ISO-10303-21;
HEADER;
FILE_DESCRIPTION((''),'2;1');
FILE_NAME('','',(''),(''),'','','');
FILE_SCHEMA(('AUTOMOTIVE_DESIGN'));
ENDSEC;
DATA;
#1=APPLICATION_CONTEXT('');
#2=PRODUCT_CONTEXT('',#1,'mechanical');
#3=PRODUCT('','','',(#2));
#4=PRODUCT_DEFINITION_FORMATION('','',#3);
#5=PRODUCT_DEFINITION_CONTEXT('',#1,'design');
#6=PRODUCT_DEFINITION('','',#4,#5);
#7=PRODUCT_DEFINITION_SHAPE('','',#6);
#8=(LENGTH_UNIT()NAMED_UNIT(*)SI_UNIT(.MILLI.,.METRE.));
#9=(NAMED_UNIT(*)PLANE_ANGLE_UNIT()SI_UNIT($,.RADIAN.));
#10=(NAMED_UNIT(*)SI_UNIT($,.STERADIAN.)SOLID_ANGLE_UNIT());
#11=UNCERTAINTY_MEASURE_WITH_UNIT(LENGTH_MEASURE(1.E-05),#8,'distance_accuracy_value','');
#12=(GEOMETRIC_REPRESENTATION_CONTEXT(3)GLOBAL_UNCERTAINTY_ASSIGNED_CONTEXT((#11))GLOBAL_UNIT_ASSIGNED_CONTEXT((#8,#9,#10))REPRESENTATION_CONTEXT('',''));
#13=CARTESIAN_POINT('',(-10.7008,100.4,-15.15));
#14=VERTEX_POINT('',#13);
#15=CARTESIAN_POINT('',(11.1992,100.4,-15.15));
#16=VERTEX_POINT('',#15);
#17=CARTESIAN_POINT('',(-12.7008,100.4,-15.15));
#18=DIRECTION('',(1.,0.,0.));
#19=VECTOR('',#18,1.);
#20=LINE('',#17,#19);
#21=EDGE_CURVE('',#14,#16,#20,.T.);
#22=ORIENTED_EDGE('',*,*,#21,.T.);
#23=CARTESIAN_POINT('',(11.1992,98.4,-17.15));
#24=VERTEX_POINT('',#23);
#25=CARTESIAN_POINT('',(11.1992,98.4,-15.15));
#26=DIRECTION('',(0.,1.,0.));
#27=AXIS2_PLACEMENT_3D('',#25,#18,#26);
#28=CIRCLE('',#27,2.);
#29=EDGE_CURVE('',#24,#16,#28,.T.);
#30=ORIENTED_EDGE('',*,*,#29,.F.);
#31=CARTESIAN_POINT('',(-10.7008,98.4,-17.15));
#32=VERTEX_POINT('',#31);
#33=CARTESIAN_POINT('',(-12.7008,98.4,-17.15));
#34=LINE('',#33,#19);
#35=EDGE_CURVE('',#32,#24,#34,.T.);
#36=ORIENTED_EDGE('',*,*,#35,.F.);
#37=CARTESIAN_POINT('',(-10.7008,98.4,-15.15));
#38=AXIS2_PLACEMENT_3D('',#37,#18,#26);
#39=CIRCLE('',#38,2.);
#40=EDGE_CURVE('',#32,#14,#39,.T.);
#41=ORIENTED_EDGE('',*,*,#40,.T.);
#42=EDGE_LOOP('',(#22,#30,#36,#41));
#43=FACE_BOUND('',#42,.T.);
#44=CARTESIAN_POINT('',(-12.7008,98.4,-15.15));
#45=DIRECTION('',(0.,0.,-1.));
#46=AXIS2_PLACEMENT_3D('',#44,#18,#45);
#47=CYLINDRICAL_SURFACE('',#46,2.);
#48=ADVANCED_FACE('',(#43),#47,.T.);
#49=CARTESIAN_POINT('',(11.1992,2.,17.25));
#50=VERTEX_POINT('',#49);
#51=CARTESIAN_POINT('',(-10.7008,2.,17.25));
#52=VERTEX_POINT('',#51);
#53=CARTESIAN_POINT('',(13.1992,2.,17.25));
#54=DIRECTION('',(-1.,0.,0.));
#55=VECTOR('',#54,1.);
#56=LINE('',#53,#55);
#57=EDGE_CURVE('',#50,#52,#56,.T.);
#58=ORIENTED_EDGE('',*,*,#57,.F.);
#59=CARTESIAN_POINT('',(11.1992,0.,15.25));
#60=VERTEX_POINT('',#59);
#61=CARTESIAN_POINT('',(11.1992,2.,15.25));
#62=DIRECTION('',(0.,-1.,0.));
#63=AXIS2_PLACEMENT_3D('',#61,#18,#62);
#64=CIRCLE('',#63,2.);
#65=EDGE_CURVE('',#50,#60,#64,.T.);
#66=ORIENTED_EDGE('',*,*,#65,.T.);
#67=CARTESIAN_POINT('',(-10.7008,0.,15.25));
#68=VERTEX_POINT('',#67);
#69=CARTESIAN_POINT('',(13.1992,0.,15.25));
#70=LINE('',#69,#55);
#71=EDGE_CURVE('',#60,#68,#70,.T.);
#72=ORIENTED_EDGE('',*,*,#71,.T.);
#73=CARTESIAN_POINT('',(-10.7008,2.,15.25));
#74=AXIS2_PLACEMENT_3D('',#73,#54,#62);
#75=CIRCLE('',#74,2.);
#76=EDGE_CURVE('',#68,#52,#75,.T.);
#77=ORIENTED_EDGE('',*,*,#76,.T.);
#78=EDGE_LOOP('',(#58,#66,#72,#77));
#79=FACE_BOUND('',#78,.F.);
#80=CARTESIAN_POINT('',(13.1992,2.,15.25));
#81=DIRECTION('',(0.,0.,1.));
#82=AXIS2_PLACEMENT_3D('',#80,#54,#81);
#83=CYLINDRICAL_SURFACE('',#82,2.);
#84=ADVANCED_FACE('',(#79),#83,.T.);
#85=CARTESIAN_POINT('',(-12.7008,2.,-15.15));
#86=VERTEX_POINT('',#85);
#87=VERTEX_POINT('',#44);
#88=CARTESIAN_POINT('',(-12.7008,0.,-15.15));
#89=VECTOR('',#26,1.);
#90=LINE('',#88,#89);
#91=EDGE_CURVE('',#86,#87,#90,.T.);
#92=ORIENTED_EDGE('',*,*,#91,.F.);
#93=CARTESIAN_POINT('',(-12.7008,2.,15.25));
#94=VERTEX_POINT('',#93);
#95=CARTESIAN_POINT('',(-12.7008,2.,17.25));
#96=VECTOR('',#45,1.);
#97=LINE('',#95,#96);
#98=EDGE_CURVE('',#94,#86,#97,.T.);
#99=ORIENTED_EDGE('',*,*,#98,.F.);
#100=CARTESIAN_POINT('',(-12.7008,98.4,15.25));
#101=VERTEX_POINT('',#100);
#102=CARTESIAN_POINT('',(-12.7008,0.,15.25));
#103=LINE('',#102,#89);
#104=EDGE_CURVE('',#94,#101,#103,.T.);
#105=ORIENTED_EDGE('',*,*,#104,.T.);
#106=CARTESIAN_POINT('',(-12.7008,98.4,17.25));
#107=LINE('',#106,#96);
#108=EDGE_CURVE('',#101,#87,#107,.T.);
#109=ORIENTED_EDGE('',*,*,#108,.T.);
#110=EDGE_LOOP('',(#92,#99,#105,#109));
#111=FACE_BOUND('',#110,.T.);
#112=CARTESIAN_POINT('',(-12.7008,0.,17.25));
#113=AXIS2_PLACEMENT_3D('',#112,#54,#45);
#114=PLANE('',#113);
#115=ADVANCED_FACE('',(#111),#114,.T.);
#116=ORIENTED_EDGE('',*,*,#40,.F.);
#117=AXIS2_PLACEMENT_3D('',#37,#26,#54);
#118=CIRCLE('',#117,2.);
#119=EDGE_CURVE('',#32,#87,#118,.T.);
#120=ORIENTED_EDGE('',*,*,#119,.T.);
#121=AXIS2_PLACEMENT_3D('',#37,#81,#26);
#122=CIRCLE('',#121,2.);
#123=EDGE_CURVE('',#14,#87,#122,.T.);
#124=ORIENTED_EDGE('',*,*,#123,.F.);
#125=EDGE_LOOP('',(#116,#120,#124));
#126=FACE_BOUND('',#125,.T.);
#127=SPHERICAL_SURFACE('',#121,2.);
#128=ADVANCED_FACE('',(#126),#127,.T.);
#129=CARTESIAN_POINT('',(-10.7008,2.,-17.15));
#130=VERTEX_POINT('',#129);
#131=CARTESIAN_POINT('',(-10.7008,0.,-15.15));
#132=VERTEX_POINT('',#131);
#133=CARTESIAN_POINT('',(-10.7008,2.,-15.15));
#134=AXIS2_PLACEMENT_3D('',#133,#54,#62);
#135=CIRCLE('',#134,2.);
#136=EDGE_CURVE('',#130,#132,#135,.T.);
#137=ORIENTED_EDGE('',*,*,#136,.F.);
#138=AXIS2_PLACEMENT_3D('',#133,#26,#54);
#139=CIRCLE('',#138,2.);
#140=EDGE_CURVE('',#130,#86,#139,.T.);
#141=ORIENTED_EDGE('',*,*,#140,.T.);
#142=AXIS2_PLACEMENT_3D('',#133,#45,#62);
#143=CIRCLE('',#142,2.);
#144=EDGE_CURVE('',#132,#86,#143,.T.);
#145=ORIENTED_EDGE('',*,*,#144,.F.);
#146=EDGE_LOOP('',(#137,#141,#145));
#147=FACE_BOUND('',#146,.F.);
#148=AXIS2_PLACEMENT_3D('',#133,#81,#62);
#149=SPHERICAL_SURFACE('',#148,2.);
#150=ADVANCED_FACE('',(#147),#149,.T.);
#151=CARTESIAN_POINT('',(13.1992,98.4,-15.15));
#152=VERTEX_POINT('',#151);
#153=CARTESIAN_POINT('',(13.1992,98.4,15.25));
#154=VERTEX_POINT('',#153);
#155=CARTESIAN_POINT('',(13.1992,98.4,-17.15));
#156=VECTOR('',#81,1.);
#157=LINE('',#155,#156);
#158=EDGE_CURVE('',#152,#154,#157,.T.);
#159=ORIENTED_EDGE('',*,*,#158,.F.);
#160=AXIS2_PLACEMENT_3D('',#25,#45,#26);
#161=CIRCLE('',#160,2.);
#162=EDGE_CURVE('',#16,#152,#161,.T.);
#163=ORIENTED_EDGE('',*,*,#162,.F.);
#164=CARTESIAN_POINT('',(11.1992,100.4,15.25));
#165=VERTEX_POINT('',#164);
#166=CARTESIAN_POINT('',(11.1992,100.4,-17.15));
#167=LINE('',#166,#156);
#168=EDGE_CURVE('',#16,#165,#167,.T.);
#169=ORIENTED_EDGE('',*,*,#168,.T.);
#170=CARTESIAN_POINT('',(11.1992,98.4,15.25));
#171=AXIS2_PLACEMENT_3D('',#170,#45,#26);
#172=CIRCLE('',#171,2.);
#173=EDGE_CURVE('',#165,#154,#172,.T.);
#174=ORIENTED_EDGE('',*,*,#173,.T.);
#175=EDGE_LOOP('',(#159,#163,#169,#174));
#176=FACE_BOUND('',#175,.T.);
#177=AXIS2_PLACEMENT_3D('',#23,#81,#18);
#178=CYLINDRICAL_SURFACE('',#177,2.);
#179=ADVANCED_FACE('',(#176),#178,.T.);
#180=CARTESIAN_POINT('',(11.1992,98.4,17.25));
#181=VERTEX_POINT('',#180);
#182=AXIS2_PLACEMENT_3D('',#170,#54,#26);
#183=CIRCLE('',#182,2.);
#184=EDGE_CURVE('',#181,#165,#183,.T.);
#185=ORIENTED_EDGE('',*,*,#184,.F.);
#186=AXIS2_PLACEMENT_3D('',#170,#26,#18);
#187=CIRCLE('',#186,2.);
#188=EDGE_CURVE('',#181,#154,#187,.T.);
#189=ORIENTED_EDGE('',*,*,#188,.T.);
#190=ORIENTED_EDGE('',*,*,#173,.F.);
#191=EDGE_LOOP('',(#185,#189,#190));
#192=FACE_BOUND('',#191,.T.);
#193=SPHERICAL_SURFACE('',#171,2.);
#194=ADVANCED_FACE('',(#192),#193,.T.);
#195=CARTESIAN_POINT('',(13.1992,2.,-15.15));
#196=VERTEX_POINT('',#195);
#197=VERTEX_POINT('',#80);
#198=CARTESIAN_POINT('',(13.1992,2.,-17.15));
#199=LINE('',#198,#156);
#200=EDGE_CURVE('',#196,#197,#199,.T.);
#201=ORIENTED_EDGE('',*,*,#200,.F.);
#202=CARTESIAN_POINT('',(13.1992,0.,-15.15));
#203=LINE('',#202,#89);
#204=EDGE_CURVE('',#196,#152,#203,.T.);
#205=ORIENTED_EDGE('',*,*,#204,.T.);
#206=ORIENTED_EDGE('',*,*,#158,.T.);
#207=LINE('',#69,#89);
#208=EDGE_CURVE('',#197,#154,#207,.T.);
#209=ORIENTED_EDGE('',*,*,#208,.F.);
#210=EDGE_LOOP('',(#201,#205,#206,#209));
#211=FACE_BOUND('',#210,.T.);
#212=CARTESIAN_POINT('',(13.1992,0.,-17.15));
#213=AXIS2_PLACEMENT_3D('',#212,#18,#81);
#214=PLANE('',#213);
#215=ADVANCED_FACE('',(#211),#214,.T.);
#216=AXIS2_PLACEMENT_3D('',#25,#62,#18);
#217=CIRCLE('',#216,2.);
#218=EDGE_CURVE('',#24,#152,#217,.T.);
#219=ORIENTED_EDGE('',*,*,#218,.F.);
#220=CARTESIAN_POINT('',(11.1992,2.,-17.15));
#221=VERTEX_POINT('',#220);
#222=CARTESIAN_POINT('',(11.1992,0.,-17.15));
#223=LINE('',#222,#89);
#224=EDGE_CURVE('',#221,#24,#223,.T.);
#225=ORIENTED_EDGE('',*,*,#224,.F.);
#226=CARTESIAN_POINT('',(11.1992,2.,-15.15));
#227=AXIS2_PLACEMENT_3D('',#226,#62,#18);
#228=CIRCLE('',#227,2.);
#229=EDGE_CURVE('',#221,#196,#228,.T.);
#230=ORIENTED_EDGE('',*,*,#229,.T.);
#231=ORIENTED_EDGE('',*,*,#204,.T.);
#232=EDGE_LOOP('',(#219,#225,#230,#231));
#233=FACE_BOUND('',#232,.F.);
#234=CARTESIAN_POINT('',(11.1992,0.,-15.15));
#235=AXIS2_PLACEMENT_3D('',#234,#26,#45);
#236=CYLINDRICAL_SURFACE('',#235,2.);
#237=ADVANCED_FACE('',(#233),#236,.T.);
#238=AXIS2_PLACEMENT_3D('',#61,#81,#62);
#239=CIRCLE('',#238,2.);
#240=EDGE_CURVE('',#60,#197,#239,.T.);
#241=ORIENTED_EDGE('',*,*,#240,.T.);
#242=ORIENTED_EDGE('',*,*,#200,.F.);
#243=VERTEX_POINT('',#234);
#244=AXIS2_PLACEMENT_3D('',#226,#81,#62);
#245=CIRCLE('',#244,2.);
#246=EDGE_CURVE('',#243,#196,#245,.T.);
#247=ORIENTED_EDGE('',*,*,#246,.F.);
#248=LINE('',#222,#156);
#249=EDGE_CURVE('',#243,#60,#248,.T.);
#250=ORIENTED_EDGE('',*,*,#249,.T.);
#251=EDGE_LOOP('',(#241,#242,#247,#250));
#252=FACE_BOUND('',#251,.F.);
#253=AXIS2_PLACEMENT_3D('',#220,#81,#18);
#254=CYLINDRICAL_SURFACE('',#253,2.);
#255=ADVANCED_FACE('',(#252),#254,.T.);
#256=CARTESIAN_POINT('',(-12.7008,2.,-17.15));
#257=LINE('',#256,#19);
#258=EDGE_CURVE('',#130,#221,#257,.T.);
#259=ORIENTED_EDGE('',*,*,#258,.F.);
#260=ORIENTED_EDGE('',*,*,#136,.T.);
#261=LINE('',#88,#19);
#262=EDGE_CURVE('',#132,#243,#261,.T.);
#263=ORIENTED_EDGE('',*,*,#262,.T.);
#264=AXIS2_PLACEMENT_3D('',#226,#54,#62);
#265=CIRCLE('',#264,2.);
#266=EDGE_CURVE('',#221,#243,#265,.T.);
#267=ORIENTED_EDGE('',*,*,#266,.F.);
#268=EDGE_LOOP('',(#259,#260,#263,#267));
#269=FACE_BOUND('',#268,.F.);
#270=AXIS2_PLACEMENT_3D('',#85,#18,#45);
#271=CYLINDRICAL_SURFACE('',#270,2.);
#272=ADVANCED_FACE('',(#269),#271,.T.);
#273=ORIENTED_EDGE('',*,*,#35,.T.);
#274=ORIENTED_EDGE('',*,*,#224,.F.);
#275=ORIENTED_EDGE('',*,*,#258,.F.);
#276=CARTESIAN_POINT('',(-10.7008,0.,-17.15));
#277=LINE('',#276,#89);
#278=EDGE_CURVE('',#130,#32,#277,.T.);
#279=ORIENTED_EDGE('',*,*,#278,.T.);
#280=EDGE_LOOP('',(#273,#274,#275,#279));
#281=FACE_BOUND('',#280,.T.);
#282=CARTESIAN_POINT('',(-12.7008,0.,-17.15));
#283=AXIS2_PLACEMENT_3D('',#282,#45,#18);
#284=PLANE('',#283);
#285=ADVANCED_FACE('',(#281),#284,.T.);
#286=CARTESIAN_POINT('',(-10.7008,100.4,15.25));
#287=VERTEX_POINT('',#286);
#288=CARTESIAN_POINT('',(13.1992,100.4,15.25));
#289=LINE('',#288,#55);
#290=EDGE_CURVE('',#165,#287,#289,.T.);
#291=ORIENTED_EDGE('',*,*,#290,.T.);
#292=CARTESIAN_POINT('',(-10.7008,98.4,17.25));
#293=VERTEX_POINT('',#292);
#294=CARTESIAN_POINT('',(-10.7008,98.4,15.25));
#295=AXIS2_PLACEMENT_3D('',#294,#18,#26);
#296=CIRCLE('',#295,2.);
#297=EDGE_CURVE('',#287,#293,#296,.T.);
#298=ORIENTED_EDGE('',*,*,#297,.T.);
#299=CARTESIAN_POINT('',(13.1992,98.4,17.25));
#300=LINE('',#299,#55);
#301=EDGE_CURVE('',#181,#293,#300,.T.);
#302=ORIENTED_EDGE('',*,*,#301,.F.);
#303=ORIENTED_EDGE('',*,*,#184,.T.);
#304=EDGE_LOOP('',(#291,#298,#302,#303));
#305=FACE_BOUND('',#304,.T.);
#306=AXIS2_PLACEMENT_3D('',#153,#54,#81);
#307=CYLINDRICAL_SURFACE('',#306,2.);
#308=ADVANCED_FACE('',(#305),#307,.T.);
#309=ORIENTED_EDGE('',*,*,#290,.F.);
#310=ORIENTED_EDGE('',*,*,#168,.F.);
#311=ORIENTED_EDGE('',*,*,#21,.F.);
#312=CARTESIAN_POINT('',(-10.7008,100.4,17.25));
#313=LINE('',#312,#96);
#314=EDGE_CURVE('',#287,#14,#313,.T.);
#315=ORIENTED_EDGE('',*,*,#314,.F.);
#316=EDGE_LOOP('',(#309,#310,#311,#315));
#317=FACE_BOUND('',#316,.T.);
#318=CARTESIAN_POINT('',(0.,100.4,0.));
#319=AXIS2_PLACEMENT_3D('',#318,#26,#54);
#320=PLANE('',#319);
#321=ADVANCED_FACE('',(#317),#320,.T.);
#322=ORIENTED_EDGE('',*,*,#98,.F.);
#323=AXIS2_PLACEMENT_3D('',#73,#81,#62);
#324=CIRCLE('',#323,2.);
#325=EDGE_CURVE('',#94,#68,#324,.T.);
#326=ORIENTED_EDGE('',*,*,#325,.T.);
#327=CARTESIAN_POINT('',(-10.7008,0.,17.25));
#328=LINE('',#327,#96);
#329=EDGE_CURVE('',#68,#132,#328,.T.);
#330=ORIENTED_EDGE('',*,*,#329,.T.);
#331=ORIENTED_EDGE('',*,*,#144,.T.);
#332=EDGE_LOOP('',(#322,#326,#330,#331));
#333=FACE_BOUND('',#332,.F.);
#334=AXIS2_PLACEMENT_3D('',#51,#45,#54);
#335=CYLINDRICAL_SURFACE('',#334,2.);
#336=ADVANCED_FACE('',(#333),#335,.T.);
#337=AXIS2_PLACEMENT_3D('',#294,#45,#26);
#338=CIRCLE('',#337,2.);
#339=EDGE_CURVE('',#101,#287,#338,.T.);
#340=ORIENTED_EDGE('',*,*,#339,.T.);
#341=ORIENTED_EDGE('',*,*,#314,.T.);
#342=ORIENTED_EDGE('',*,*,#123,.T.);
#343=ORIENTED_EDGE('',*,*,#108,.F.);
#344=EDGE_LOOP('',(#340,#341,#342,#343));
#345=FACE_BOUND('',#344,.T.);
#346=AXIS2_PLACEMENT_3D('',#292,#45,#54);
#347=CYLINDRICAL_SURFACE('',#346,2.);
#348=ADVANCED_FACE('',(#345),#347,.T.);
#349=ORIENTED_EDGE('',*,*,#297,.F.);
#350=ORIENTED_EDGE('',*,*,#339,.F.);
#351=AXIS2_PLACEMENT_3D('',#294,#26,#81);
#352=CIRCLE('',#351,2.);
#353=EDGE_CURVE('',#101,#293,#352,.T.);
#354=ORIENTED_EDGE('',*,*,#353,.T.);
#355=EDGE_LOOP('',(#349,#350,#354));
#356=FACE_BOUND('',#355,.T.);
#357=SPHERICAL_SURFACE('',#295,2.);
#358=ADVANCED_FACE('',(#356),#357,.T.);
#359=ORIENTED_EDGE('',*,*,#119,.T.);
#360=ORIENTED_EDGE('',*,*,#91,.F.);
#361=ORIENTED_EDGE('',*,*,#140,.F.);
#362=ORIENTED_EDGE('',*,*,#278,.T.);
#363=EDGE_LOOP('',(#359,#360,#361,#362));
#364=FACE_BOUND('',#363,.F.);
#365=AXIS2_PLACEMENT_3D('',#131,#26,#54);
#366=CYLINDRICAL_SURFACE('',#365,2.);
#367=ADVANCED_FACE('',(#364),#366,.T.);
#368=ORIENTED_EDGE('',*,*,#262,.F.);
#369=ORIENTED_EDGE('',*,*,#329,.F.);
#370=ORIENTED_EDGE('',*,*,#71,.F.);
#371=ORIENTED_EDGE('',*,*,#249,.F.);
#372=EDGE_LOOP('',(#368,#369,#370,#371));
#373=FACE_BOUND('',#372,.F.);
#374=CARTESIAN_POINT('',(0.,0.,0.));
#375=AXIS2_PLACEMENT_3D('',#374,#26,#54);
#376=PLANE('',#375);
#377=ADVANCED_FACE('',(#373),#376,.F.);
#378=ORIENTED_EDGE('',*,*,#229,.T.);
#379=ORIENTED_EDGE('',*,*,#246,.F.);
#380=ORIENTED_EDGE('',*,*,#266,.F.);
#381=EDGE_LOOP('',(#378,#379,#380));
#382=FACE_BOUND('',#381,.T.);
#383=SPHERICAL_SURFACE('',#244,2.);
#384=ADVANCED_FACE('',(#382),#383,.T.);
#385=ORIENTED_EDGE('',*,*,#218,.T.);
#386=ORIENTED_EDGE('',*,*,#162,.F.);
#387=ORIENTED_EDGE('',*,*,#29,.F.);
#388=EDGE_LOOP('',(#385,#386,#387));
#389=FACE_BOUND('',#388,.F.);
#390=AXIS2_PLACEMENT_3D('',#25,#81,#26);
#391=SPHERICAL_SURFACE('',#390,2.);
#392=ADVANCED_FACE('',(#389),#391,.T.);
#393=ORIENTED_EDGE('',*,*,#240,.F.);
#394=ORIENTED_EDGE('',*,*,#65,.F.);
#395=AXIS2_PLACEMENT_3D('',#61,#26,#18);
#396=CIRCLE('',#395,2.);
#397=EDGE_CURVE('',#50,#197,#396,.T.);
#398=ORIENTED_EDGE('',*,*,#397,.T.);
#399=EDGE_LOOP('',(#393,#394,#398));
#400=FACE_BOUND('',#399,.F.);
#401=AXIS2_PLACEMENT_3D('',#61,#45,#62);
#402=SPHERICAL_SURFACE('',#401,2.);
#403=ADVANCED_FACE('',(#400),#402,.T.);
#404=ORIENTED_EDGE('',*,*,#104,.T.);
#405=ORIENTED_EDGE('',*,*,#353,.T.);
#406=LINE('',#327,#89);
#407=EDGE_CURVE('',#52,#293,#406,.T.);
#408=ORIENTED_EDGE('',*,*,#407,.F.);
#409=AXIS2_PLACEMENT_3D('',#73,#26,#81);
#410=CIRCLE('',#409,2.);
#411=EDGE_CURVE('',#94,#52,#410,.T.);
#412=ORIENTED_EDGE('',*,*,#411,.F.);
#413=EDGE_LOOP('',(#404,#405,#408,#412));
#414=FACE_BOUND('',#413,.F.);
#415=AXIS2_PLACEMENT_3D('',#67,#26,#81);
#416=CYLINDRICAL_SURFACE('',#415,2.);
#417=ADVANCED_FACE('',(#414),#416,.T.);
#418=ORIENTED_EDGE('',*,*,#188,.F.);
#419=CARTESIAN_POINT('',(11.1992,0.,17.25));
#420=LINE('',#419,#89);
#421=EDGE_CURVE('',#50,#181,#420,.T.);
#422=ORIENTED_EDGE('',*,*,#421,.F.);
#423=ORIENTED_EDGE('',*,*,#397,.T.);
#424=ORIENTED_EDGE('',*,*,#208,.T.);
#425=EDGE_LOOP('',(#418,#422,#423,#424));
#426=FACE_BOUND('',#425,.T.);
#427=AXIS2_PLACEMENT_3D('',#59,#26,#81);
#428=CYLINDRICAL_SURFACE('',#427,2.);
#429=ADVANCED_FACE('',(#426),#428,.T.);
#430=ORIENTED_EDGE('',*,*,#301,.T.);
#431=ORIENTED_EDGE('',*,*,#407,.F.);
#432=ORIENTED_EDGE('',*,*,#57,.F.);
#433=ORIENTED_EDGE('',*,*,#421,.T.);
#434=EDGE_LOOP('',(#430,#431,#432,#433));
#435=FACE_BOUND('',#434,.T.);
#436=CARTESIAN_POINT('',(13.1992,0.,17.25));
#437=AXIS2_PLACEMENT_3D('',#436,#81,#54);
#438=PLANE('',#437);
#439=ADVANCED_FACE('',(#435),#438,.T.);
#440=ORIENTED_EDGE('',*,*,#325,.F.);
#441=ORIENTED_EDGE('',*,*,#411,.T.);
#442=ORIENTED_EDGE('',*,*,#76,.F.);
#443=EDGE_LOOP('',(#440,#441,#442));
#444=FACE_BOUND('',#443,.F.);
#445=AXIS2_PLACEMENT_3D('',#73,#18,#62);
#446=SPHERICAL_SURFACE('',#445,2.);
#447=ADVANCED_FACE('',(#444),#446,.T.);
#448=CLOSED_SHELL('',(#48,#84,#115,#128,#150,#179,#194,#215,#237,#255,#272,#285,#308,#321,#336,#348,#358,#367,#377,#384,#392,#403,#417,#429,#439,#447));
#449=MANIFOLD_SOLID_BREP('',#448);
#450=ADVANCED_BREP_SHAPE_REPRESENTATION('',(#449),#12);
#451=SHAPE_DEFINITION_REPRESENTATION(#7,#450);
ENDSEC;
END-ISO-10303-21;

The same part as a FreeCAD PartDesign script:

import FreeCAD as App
import Part
import Sketcher
from FreeCAD import Vector


def add_polygon(sketch, points):
    """Adds a closed chain of lines whose ends are joined by coincident constraints."""
    first, n = sketch.GeometryCount, len(points)
    for a, b in zip(points, points[1:] + points[:1]):
        sketch.addGeometry(Part.LineSegment(App.Vector(*a, 0), App.Vector(*b, 0)), False)
    for i in range(n):
        sketch.addConstraint(Sketcher.Constraint("Coincident", first + i, 2, first + (i + 1) % n, 1))

doc = App.newDocument("Part")
body = doc.addObject("PartDesign::Body", "Body")

# Sketch on XZ plane
sketch1 = body.newObject("Sketcher::SketchObject", "Sketch")
sketch1.AttachmentSupport = (doc.getObject("XZ_Plane"), [""])
sketch1.MapMode = "FlatFace"
add_polygon(sketch1, [(-13, 17), (13, 17), (13, -17), (-13, -17)])  # lines 0-3
sketch1.addConstraint([
    Sketcher.Constraint("Horizontal", 0),
    Sketcher.Constraint("Vertical", 1),
    Sketcher.Constraint("Horizontal", 2),
    Sketcher.Constraint("Vertical", 3),
    Sketcher.Constraint("DistanceX", 0, 1, 0, 2, 25.9),
    Sketcher.Constraint("DistanceY", 1, 2, 1, 1, 34.4),
    Sketcher.Constraint("DistanceY", -1, 1, 0, 2, 17.25),
    Sketcher.Constraint("DistanceX", -1, 1, 0, 2, 13.1992),
])
pad1 = body.newObject("PartDesign::Pad", "Pad")
pad1.Profile = sketch1
pad1.Length = 100.4
pad1.Reversed = True
doc.recompute()

fillet = body.newObject("PartDesign::Fillet", "Fillet")
fillet.Base = (pad1, ["Edge1"])
fillet.UseAllEdges = True
fillet.Radius = 2

doc.recompute()
